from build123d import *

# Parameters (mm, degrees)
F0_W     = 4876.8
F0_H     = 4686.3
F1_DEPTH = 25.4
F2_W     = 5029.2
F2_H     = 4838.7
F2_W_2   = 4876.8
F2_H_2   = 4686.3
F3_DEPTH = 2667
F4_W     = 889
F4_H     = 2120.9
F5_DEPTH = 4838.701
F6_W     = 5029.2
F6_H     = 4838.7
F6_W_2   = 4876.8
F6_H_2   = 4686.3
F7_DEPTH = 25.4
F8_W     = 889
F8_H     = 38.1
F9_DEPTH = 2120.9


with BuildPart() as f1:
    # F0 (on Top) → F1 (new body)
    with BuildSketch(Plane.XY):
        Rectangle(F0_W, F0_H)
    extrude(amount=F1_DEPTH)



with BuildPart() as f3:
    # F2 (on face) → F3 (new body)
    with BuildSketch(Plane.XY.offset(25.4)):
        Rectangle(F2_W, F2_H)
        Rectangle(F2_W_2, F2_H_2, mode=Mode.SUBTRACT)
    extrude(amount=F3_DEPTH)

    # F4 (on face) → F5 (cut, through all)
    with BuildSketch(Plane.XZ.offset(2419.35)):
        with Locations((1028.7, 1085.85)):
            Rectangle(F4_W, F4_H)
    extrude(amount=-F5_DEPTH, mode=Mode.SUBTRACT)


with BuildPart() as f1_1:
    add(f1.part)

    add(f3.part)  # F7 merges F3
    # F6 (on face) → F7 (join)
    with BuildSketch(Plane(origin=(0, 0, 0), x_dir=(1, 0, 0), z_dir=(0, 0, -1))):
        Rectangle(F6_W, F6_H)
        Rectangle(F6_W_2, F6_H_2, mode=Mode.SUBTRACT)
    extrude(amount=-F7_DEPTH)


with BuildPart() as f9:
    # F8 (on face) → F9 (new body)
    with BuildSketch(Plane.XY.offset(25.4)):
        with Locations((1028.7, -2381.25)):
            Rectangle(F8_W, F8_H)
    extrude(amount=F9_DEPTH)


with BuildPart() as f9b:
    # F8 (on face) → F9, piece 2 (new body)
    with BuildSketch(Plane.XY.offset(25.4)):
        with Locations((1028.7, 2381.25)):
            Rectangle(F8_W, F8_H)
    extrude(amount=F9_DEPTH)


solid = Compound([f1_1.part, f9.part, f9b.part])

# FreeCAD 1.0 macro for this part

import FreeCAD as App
import Part
import Sketcher
Q = App.Units.Quantity


def add_polygon(sketch, points):
    """Adds a closed chain of lines whose ends are joined by coincident constraints."""
    first, n = sketch.GeometryCount, len(points)
    for a, b in zip(points, points[1:] + points[:1]):
        sketch.addGeometry(Part.LineSegment(App.Vector(*a, 0), App.Vector(*b, 0)), False)
    for i in range(n):
        sketch.addConstraint(Sketcher.Constraint("Coincident", first + i, 2, first + (i + 1) % n, 1))

doc = App.newDocument("Part")
body = doc.addObject("PartDesign::Body", "Body")

sketch1 = doc.addObject("Sketcher::SketchObject", "Sketch")
body.addObject(sketch1)
sketch1.AttachmentSupport = (doc.XY_Plane, [""])
sketch1.MapMode = "FlatFace"
add_polygon(sketch1, [(-2438, 2343), (-2438, -2343), (2438, -2343), (2438, 2343)])
sketch1.addConstraint([
    Sketcher.Constraint("Vertical", 0),
    Sketcher.Constraint("Horizontal", 1),
    Sketcher.Constraint("Vertical", 2),
    Sketcher.Constraint("Horizontal", 3),
    Sketcher.Constraint("Symmetric", 0, 2, 2, 2, -1, 1),
    Sketcher.Constraint("DistanceX", 1, 1, 1, 2, Q("192 in")),
    Sketcher.Constraint("DistanceY", 0, 2, 0, 1, Q("184.5 in")),
])
pad1 = doc.addObject("PartDesign::Pad", "Pad")
body.addObject(pad1)
pad1.Profile = sketch1
pad1.Length = Q("1 in")
body2 = doc.addObject("PartDesign::Body", "Body001")

sketch2 = doc.addObject("Sketcher::SketchObject", "Sketch001")
body2.addObject(sketch2)
sketch2.AttachmentSupport = (doc.getObject("XY_Plane001"), [""])
sketch2.MapMode = "FlatFace"
sketch2.AttachmentOffset = App.Placement(App.Vector(0, 0, 1 * 25.4), App.Rotation())
add_polygon(sketch2, [(-2515, 2419), (-2515, -2419), (2515, -2419), (2515, 2419)])
add_polygon(sketch2, [(2438, -2343), (-2438, -2343), (-2438, 2343), (2438, 2343)])
sketch2.addConstraint([
    Sketcher.Constraint("Vertical", 0),
    Sketcher.Constraint("Horizontal", 1),
    Sketcher.Constraint("Vertical", 2),
    Sketcher.Constraint("Horizontal", 3),
    Sketcher.Constraint("Horizontal", 4),
    Sketcher.Constraint("Vertical", 5),
    Sketcher.Constraint("Horizontal", 6),
    Sketcher.Constraint("Vertical", 7),
    Sketcher.Constraint("Symmetric", 0, 2, 2, 2, -1, 1),
    Sketcher.Constraint("Symmetric", 4, 2, 6, 2, -1, 1),
    Sketcher.Constraint("DistanceX", 1, 1, 1, 2, Q("198 in")),
    Sketcher.Constraint("DistanceX", 4, 2, 4, 1, Q("192 in")),
    Sketcher.Constraint("DistanceY", 0, 2, 0, 1, Q("190.5 in")),
    Sketcher.Constraint("DistanceY", 5, 1, 5, 2, Q("184.5 in")),
])
pad2 = doc.addObject("PartDesign::Pad", "Pad001")
body2.addObject(pad2)
pad2.Profile = sketch2
pad2.Length = Q("105 in")

sketch3 = doc.addObject("Sketcher::SketchObject", "Sketch002")
body2.addObject(sketch3)
sketch3.AttachmentSupport = (doc.getObject("XZ_Plane001"), [""])
sketch3.MapMode = "FlatFace"
sketch3.AttachmentOffset = App.Placement(App.Vector(0, 0, 95.25 * 25.4), App.Rotation())
add_polygon(sketch3, [(584, 2146), (584, 25), (1473, 25), (1473, 2146)])
sketch3.addConstraint([
    Sketcher.Constraint("Vertical", 0),
    Sketcher.Constraint("Horizontal", 1),
    Sketcher.Constraint("Vertical", 2),
    Sketcher.Constraint("Horizontal", 3),
    Sketcher.Constraint("DistanceX", 1, 1, 1, 2, Q("35 in")),
    Sketcher.Constraint("DistanceY", 0, 2, 0, 1, Q("83.5 in")),
    Sketcher.Constraint("DistanceX", -1, 1, 0, 2, Q("23 in")),
    Sketcher.Constraint("DistanceY", -1, 1, 0, 2, Q("1 in")),
])
pocket1 = doc.addObject("PartDesign::Pocket", "Pocket")
body2.addObject(pocket1)
pocket1.Profile = sketch3
pocket1.Type = "ThroughAll"
body.AllowCompound = True
doc.recompute()

boolean = doc.addObject("PartDesign::Boolean", "Boolean")
body.addObject(boolean)
boolean.Type = "Fuse"
boolean.addObjects([body2])

sketch4 = doc.addObject("Sketcher::SketchObject", "Sketch003")
body.addObject(sketch4)
sketch4.AttachmentSupport = (doc.XY_Plane, [""])
sketch4.MapMode = "FlatFace"
add_polygon(sketch4, [(-2515, -2419), (-2515, 2419), (2515, 2419), (2515, -2419)])
add_polygon(sketch4, [(2438, 2343), (-2438, 2343), (-2438, -2343), (2438, -2343)])
sketch4.addConstraint([
    Sketcher.Constraint("Vertical", 0),
    Sketcher.Constraint("Horizontal", 1),
    Sketcher.Constraint("Vertical", 2),
    Sketcher.Constraint("Horizontal", 3),
    Sketcher.Constraint("Horizontal", 4),
    Sketcher.Constraint("Vertical", 5),
    Sketcher.Constraint("Horizontal", 6),
    Sketcher.Constraint("Vertical", 7),
    Sketcher.Constraint("Symmetric", 0, 2, 2, 2, -1, 1),
    Sketcher.Constraint("Symmetric", 4, 2, 6, 2, -1, 1),
    Sketcher.Constraint("DistanceX", 1, 1, 1, 2, Q("198 in")),
    Sketcher.Constraint("DistanceX", 4, 2, 4, 1, Q("192 in")),
    Sketcher.Constraint("DistanceY", 0, 1, 0, 2, Q("190.5 in")),
    Sketcher.Constraint("DistanceY", 5, 2, 5, 1, Q("184.5 in")),
])
pad3 = doc.addObject("PartDesign::Pad", "Pad002")
body.addObject(pad3)
pad3.Profile = sketch4
pad3.Length = Q("1 in")
body3 = doc.addObject("PartDesign::Body", "Body002")

sketch5 = doc.addObject("Sketcher::SketchObject", "Sketch004")
body3.addObject(sketch5)
sketch5.AttachmentSupport = (doc.getObject("XY_Plane002"), [""])
sketch5.MapMode = "FlatFace"
sketch5.AttachmentOffset = App.Placement(App.Vector(0, 0, 1 * 25.4), App.Rotation())
add_polygon(sketch5, [(584, -2362), (584, -2400), (1473, -2400), (1473, -2362)])
sketch5.addConstraint([
    Sketcher.Constraint("Vertical", 0),
    Sketcher.Constraint("Horizontal", 1),
    Sketcher.Constraint("Vertical", 2),
    Sketcher.Constraint("Horizontal", 3),
    Sketcher.Constraint("DistanceX", 1, 1, 1, 2, Q("35 in")),
    Sketcher.Constraint("DistanceY", 0, 2, 0, 1, Q("1.5 in")),
    Sketcher.Constraint("DistanceX", -1, 1, 0, 2, Q("23 in")),
    Sketcher.Constraint("DistanceY", 2, 2, -1, 1, Q("93 in")),
])
pad4 = doc.addObject("PartDesign::Pad", "Pad003")
body3.addObject(pad4)
pad4.Profile = sketch5
pad4.Length = Q("83.5 in")
body4 = doc.addObject("PartDesign::Body", "Body003")

sketch6 = doc.addObject("Sketcher::SketchObject", "Sketch005")
body4.addObject(sketch6)
sketch6.AttachmentSupport = (doc.getObject("XY_Plane003"), [""])
sketch6.MapMode = "FlatFace"
sketch6.AttachmentOffset = App.Placement(App.Vector(0, 0, 1 * 25.4), App.Rotation())
add_polygon(sketch6, [(584, 2400), (584, 2362), (1473, 2362), (1473, 2400)])
sketch6.addConstraint([
    Sketcher.Constraint("Vertical", 0),
    Sketcher.Constraint("Horizontal", 1),
    Sketcher.Constraint("Vertical", 2),
    Sketcher.Constraint("Horizontal", 3),
    Sketcher.Constraint("DistanceX", 1, 1, 1, 2, Q("35 in")),
    Sketcher.Constraint("DistanceY", 0, 2, 0, 1, Q("1.5 in")),
    Sketcher.Constraint("DistanceX", -1, 1, 0, 2, Q("23 in")),
    Sketcher.Constraint("DistanceY", -1, 1, 0, 2, Q("93 in")),
])
pad5 = doc.addObject("PartDesign::Pad", "Pad004")
body4.addObject(pad5)
pad5.Profile = sketch6
pad5.Length = Q("83.5 in")

doc.recompute()
